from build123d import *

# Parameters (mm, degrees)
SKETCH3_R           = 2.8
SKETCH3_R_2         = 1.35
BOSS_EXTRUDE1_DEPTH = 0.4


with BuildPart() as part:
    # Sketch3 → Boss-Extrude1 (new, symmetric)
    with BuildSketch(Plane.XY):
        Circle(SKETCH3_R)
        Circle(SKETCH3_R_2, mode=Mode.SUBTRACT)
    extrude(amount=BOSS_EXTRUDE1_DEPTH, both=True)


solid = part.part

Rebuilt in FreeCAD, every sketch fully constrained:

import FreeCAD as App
import Part
import Sketcher

V = App.Vector
Q = App.Units.Quantity

doc = App.newDocument("Part")
params = doc.addObject("Spreadsheet::Sheet", "Params")
for row, (alias, value) in enumerate([
    ("sketch1_diameter", "5.6 mm"),
    ("sketch1_diameter2", "2.7 mm"),
    ("pad1_length", "0.8 mm"),
], start=1):
    params.set(f"A{row}", alias)
    params.set(f"B{row}", "=" + value)
    params.setAlias(f"B{row}", alias)

body = doc.addObject("PartDesign::Body", "Body")

sketch1 = body.newObject("Sketcher::SketchObject", "Sketch")
sketch1.AttachmentSupport = (doc.getObject("XY_Plane"), [""])
sketch1.MapMode = "FlatFace"
sketch1.addGeometry(Part.Circle(V(0, 0, 0), V(0, 0, 1), 2.8), False)
sketch1.addGeometry(Part.Circle(V(0, 0, 0), V(0, 0, 1), 1.4), False)
sketch1.addConstraint(Sketcher.Constraint("Coincident", 0, 3, -1, 1))
sketch1.addConstraint(Sketcher.Constraint("Coincident", 1, 3, -1, 1))
sketch1.addConstraint(Sketcher.Constraint("Diameter", 0, Q("5.6 mm")))
sketch1.addConstraint(Sketcher.Constraint("Diameter", 1, Q("2.7 mm")))
sketch1.setExpression("Constraints[2]", "Params.sketch1_diameter")
sketch1.setExpression("Constraints[3]", "Params.sketch1_diameter2")
pad1 = body.newObject("PartDesign::Pad", "Pad")
pad1.Profile = sketch1
pad1.setExpression("Length", "Params.pad1_length")
pad1.Midplane = True

doc.recompute()
